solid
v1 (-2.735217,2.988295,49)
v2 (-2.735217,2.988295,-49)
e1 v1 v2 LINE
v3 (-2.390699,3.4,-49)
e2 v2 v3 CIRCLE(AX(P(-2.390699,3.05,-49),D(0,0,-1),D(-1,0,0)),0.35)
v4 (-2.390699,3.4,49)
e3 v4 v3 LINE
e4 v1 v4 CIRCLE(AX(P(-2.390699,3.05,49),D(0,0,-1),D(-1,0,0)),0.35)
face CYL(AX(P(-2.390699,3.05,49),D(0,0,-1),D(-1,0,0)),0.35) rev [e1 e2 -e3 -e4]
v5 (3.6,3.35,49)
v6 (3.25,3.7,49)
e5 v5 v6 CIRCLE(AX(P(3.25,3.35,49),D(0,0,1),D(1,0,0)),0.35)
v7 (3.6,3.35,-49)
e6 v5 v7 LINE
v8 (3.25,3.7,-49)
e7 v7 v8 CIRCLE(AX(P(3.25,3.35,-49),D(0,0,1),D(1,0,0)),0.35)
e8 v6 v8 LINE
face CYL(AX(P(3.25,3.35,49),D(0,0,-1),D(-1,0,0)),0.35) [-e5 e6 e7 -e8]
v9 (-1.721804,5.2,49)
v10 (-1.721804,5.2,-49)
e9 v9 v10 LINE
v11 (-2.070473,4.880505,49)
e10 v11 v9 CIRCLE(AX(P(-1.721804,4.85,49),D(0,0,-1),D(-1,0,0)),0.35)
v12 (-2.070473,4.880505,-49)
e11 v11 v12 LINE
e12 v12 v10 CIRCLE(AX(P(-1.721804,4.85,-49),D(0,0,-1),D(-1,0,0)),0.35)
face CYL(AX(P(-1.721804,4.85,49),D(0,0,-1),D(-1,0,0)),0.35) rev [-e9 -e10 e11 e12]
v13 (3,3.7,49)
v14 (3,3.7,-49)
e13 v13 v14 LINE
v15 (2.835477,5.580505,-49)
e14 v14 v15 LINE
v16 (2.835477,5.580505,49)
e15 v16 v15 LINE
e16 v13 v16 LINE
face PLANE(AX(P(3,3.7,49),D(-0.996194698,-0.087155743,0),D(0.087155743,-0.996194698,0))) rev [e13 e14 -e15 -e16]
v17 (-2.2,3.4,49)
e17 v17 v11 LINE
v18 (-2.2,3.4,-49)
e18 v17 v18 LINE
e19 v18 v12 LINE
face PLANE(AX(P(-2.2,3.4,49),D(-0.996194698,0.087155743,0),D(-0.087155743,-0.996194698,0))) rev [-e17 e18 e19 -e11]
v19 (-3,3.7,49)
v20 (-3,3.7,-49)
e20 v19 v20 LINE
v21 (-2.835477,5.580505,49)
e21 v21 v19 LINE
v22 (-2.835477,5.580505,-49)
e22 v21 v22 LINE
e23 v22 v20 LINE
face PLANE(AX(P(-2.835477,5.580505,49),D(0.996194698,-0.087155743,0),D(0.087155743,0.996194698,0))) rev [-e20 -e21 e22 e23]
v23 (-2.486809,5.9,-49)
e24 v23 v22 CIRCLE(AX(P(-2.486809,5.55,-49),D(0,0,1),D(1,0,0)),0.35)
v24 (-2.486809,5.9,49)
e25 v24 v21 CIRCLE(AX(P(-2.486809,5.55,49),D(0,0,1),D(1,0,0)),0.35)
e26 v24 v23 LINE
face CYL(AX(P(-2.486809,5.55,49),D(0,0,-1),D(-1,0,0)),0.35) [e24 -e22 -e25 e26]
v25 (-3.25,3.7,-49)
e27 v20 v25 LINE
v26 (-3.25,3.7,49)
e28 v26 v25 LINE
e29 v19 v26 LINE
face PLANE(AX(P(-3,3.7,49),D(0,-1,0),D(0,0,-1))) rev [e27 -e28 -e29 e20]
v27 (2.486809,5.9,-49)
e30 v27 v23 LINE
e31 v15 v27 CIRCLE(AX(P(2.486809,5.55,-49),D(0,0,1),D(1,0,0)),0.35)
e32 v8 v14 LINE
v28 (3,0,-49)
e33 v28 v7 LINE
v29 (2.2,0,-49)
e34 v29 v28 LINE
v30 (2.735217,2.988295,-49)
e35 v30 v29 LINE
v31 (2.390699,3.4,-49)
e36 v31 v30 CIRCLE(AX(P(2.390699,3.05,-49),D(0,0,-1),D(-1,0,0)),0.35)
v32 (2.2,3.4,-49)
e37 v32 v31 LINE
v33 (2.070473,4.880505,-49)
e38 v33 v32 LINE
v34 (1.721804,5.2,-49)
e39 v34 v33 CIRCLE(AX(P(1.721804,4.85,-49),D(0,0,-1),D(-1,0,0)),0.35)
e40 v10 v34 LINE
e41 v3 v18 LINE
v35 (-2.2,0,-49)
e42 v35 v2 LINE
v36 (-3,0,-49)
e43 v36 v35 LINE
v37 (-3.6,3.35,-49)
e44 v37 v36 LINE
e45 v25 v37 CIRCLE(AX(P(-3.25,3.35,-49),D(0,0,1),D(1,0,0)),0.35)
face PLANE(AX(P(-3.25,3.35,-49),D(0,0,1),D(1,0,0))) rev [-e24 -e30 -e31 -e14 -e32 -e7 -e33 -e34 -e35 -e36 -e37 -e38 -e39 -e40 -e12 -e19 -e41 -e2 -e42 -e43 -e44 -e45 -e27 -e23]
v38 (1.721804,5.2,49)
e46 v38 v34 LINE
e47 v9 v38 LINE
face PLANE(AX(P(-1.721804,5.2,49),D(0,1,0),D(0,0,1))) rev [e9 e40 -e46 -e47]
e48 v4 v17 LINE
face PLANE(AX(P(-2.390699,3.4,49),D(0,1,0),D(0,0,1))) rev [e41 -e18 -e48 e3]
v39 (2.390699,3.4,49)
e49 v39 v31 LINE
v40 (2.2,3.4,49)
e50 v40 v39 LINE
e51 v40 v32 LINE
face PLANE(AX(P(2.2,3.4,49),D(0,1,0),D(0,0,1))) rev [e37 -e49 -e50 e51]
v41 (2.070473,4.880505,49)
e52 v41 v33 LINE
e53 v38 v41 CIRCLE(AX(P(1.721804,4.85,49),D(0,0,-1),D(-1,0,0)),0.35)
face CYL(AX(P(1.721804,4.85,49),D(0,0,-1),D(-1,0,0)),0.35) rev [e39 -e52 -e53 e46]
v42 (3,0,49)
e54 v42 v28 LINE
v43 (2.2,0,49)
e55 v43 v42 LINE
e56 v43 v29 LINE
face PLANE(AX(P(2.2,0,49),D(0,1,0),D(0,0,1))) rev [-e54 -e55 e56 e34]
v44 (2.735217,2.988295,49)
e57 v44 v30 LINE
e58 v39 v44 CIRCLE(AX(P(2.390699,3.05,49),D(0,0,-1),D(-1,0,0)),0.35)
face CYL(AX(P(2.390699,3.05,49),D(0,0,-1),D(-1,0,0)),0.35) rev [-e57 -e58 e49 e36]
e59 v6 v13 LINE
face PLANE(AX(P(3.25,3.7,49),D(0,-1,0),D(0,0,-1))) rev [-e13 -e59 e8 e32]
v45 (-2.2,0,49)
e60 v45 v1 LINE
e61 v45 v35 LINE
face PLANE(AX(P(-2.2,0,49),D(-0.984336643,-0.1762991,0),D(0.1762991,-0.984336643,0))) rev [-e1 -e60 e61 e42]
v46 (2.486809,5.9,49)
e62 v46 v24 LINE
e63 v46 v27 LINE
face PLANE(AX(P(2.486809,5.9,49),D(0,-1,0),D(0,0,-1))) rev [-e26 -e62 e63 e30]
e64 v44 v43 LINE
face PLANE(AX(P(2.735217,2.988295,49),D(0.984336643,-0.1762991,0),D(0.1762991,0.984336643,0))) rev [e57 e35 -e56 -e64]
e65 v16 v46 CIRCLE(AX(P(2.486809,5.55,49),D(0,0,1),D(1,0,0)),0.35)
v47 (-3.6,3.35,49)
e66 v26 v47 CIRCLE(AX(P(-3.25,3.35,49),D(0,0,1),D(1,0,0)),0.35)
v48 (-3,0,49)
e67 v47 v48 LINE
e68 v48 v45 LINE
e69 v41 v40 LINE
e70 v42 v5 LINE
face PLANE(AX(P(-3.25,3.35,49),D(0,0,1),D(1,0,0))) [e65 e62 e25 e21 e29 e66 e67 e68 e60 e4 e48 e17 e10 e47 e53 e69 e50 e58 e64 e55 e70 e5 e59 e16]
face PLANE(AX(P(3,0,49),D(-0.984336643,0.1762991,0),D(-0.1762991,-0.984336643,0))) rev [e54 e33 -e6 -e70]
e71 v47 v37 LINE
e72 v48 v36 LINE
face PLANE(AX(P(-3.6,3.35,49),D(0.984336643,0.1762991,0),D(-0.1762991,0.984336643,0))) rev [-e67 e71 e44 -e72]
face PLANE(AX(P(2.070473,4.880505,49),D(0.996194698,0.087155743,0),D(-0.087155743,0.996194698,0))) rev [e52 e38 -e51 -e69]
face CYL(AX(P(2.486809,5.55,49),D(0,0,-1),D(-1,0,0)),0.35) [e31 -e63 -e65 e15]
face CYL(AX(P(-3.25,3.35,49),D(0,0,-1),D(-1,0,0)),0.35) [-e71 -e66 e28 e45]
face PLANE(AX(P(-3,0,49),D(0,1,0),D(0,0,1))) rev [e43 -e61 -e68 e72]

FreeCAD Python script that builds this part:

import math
import FreeCAD as App
import Part
import Sketcher
from FreeCAD import Vector
Q = App.Units.Quantity

doc = App.newDocument("Part")
params = doc.addObject("Spreadsheet::Sheet", "Params")
for row, (alias, value) in enumerate([
    ("sketch1_radius", "0.35 mm"),
    ("sketch1_width", "0.8 mm"),
    ("sketch1_width2", "0.25 mm"),
    ("pad1_length", "98 mm"),
], start=1):
    params.set(f"A{row}", alias)
    params.set(f"B{row}", "=" + value)
    params.setAlias(f"B{row}", alias)

body = doc.addObject("PartDesign::Body", "Body")

sketch1 = body.newObject("Sketcher::SketchObject", "Sketch")
sketch1.AttachmentSupport = (doc.getObject("XY_Plane"), [""])
sketch1.MapMode = "FlatFace"
sketch1.addGeometry([
    Part.LineSegment(Vector(-3.6, 3.35, 0), Vector(-3, 0, 0)),
    Part.LineSegment(Vector(-3, 0, 0), Vector(-2.2, 0, 0)),
    Part.LineSegment(Vector(-2.2, 0, 0), Vector(-2.74, 2.99, 0)),
    Part.ArcOfCircle(Part.Circle(Vector(-2.39, 3.05, 0), Vector(0, 0, 1), 0.35), math.radians(90), math.radians(190)),
    Part.LineSegment(Vector(-2.39, 3.4, 0), Vector(-2.2, 3.4, 0)),
    Part.LineSegment(Vector(-2.2, 3.4, 0), Vector(-2.07, 4.88, 0)),
    Part.ArcOfCircle(Part.Circle(Vector(-1.72, 4.85, 0), Vector(0, 0, 1), 0.35), math.radians(90), math.radians(175)),
    Part.LineSegment(Vector(-1.72, 5.2, 0), Vector(1.72, 5.2, 0)),
    Part.ArcOfCircle(Part.Circle(Vector(1.72, 4.85, 0), Vector(0, 0, 1), 0.35), math.radians(5), math.radians(90)),
    Part.LineSegment(Vector(2.07, 4.88, 0), Vector(2.2, 3.4, 0)),
    Part.LineSegment(Vector(2.2, 3.4, 0), Vector(2.39, 3.4, 0)),
    Part.ArcOfCircle(Part.Circle(Vector(2.39, 3.05, 0), Vector(0, 0, 1), 0.35), math.radians(-10), math.radians(90)),
    Part.LineSegment(Vector(2.74, 2.99, 0), Vector(2.2, 0, 0)),
    Part.LineSegment(Vector(2.2, 0, 0), Vector(3, 0, 0)),
    Part.LineSegment(Vector(3, 0, 0), Vector(3.6, 3.35, 0)),
    Part.ArcOfCircle(Part.Circle(Vector(3.25, 3.35, 0), Vector(0, 0, 1), 0.35), math.radians(0), math.radians(90)),
    Part.LineSegment(Vector(3.25, 3.7, 0), Vector(3, 3.7, 0)),
    Part.LineSegment(Vector(3, 3.7, 0), Vector(2.84, 5.58, 0)),
    Part.ArcOfCircle(Part.Circle(Vector(2.49, 5.55, 0), Vector(0, 0, 1), 0.35), math.radians(5), math.radians(90)),
    Part.LineSegment(Vector(2.49, 5.9, 0), Vector(-2.49, 5.9, 0)),
    Part.ArcOfCircle(Part.Circle(Vector(-2.49, 5.55, 0), Vector(0, 0, 1), 0.35), math.radians(90), math.radians(175)),
    Part.LineSegment(Vector(-2.84, 5.58, 0), Vector(-3, 3.7, 0)),
    Part.LineSegment(Vector(-3, 3.7, 0), Vector(-3.25, 3.7, 0)),
    Part.ArcOfCircle(Part.Circle(Vector(-3.25, 3.35, 0), Vector(0, 0, 1), 0.35), math.radians(90), math.radians(180)),
], False)
sketch1.addConstraint([
    Sketcher.Constraint("Coincident", 0, 2, 1, 1),
    Sketcher.Constraint("Coincident", 1, 2, 2, 1),
    Sketcher.Constraint("Tangent", 2, 2, 3, 2),
    Sketcher.Constraint("Tangent", 3, 1, 4, 1),
    Sketcher.Constraint("Coincident", 4, 2, 5, 1),
    Sketcher.Constraint("Tangent", 5, 2, 6, 2),
    Sketcher.Constraint("Tangent", 6, 1, 7, 1),
    Sketcher.Constraint("Tangent", 7, 2, 8, 2),
    Sketcher.Constraint("Tangent", 8, 1, 9, 1),
    Sketcher.Constraint("Coincident", 9, 2, 10, 1),
    Sketcher.Constraint("Tangent", 10, 2, 11, 2),
    Sketcher.Constraint("Tangent", 11, 1, 12, 1),
    Sketcher.Constraint("Coincident", 12, 2, 13, 1),
    Sketcher.Constraint("Coincident", 13, 2, 14, 1),
    Sketcher.Constraint("Coincident", 14, 2, 15, 1),
    Sketcher.Constraint("Tangent", 15, 2, 16, 1),
    Sketcher.Constraint("Coincident", 16, 2, 17, 1),
    Sketcher.Constraint("Tangent", 17, 2, 18, 1),
    Sketcher.Constraint("Tangent", 18, 2, 19, 1),
    Sketcher.Constraint("Tangent", 19, 2, 20, 1),
    Sketcher.Constraint("Tangent", 20, 2, 21, 1),
    Sketcher.Constraint("Coincident", 21, 2, 22, 1),
    Sketcher.Constraint("Tangent", 22, 2, 23, 1),
    Sketcher.Constraint("Coincident", 23, 2, 0, 1),
    Sketcher.Constraint("Horizontal", 1),
    Sketcher.Constraint("Horizontal", 4),
    Sketcher.Constraint("Horizontal", 7),
    Sketcher.Constraint("Horizontal", 10),
    Sketcher.Constraint("Horizontal", 13),
    Sketcher.Constraint("Horizontal", 16),
    Sketcher.Constraint("Horizontal", 19),
    Sketcher.Constraint("Horizontal", 22),
    Sketcher.Constraint("Equal", 3, 6),
    Sketcher.Constraint("Equal", 6, 8),
    Sketcher.Constraint("Equal", 8, 11),
    Sketcher.Constraint("Equal", 11, 15),
    Sketcher.Constraint("Equal", 15, 18),
    Sketcher.Constraint("Equal", 18, 20),
    Sketcher.Constraint("Equal", 20, 23),
    Sketcher.Constraint("Symmetric", 1, 2, 12, 2, -1, 1),
    Sketcher.Constraint("Symmetric", 3, 3, 11, 3, -2),
    Sketcher.Constraint("Symmetric", 15, 3, 23, 3, -2),
    Sketcher.Constraint("Symmetric", 5, 2, 8, 1, -2),
    Sketcher.Constraint("Symmetric", 0, 2, 13, 2, -2),
    Sketcher.Constraint("Symmetric", 17, 2, 20, 2, -2),
    Sketcher.Constraint("Parallel", 0, 2),
    Sketcher.Constraint("Parallel", 12, 14),
    Sketcher.Constraint("Parallel", 9, 17),
    Sketcher.Constraint("Horizontal", 23, 3, 14, 2),
    Sketcher.Constraint("Vertical", 1, 2, 4, 2),
    Sketcher.Constraint("Vertical", 13, 2, 16, 2),
    Sketcher.Constraint("Angle", 5, Q("85 deg")),
    Sketcher.Constraint("Radius", 3, 0.35),
    Sketcher.Constraint("DistanceX", 1, 1, 1, 2, 0.8),
    Sketcher.Constraint("DistanceX", 0, 2, -1, 1, 3.0),
    Sketcher.Constraint("DistanceX", 16, 2, 16, 1, 0.25),
    Sketcher.Constraint("DistanceY", -1, 1, 3, 1, 3.4),
    Sketcher.Constraint("DistanceY", -1, 1, 6, 1, 5.2),
    Sketcher.Constraint("DistanceY", -1, 1, 15, 2, 3.7),
    Sketcher.Constraint("DistanceY", -1, 1, 18, 2, 5.9),
])
sketch1.setExpression("Constraints[52]", "Params.sketch1_radius")
sketch1.setExpression("Constraints[53]", "Params.sketch1_width")
sketch1.setExpression("Constraints[55]", "Params.sketch1_width2")
pad1 = body.newObject("PartDesign::Pad", "Pad")
pad1.Profile = sketch1
pad1.setExpression("Length", "Params.pad1_length")
pad1.Midplane = True

doc.recompute()
